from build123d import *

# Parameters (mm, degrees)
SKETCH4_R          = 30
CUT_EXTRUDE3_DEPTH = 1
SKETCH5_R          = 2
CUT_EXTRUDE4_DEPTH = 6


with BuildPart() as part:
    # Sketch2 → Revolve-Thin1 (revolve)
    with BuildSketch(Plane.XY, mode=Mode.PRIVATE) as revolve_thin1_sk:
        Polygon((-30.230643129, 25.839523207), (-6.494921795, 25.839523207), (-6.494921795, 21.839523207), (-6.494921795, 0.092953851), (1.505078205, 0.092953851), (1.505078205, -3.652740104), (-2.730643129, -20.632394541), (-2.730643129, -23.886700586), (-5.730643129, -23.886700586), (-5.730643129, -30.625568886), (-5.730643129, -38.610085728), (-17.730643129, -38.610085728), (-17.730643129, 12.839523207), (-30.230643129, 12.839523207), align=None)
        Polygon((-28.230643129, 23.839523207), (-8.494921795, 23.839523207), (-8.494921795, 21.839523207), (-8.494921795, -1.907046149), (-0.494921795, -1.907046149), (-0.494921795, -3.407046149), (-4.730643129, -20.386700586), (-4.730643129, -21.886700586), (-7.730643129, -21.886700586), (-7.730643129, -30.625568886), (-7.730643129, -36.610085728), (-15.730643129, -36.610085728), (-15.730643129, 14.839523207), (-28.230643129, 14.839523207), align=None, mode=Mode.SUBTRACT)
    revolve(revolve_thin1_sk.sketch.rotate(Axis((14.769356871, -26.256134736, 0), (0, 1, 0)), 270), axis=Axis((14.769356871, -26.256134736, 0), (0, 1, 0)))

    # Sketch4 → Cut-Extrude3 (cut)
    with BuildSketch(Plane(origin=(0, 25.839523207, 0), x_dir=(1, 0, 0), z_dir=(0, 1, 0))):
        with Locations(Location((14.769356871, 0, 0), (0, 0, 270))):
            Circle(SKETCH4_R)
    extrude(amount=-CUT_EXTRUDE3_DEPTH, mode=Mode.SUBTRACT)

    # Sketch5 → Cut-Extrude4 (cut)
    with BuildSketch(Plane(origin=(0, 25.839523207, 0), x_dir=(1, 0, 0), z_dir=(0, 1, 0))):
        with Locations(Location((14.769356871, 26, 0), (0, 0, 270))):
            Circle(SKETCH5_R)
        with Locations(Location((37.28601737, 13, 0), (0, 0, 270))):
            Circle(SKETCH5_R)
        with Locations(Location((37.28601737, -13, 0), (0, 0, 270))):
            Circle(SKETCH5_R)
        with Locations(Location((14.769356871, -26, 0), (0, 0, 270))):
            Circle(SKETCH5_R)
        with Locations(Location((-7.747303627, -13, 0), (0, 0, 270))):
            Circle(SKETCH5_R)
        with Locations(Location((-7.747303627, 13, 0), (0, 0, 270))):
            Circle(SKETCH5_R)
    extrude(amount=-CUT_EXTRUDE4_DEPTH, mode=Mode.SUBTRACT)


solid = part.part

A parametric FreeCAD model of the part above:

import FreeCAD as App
import Part
import Sketcher
from FreeCAD import Vector
Q = App.Units.Quantity


def add_polygon(sketch, points):
    """Adds a closed chain of lines whose ends are joined by coincident constraints."""
    first, n = sketch.GeometryCount, len(points)
    for a, b in zip(points, points[1:] + points[:1]):
        sketch.addGeometry(Part.LineSegment(App.Vector(*a, 0), App.Vector(*b, 0)), False)
    for i in range(n):
        sketch.addConstraint(Sketcher.Constraint("Coincident", first + i, 2, first + (i + 1) % n, 1))

doc = App.newDocument("Part")
params = doc.addObject("Spreadsheet::Sheet", "Params")
for row, (alias, value) in enumerate([
    ("sketch1_width", "12 mm"),
    ("sketch1_width2", "3 mm"),
    ("sketch1_width3", "8 mm"),
    ("sketch1_height", "13 mm"),
    ("sketch1_height2", "9 mm"),
    ("revolution_angle", "360 deg"),
    ("sketch2_diameter", "60 mm"),
    ("pocket1_length", "1 mm"),
    ("sketch3_diameter", "4 mm"),
    ("pocket2_length", "6 mm"),
], start=1):
    params.set(f"A{row}", alias)
    params.set(f"B{row}", "=" + value)
    params.setAlias(f"B{row}", alias)

body = doc.addObject("PartDesign::Body", "Body")

# Sketch on XY plane
sketch1 = body.newObject("Sketcher::SketchObject", "Sketch")
sketch1.AttachmentSupport = (doc.getObject("XY_Plane"), [""])
sketch1.MapMode = "FlatFace"
add_polygon(sketch1, [(-6.494922, 25.839523), (-30.230643, 25.839523), (-30.230643, 12.839523), (-17.730643, 12.839523), (-17.730643, -38.610086), (-5.730643, -38.610086), (-5.730643, -23.886701), (-2.730643, -23.886701), (-2.730643, -20.632395), (1.505078, -3.65274), (1.505078, 0.092954), (-6.494922, 0.092954)])  # lines 0-11
add_polygon(sketch1, [(-28.230643, 23.839523), (-8.494922, 23.839523), (-8.494922, -1.907046), (-0.494922, -1.907046), (-0.494922, -3.407046), (-4.730643, -20.386701), (-4.730643, -21.886701), (-7.730643, -21.886701), (-7.730643, -36.610086), (-15.730643, -36.610086), (-15.730643, 14.839523), (-28.230643, 14.839523)])  # lines 12-23
sketch1.addGeometry(Part.LineSegment(Vector(14.769357, -38.610086, 0), Vector(14.769357, 25.839523, 0)), True)  # axis
sketch1.addConstraint(Sketcher.Constraint("Horizontal", 0))
sketch1.addConstraint(Sketcher.Constraint("Vertical", 1))
sketch1.addConstraint(Sketcher.Constraint("Horizontal", 2))
sketch1.addConstraint(Sketcher.Constraint("Vertical", 3))
sketch1.addConstraint(Sketcher.Constraint("Horizontal", 4))
sketch1.addConstraint(Sketcher.Constraint("Vertical", 5))
sketch1.addConstraint(Sketcher.Constraint("Horizontal", 6))
sketch1.addConstraint(Sketcher.Constraint("Vertical", 7))
sketch1.addConstraint(Sketcher.Constraint("Vertical", 9))
sketch1.addConstraint(Sketcher.Constraint("Horizontal", 10))
sketch1.addConstraint(Sketcher.Constraint("Vertical", 11))
sketch1.addConstraint(Sketcher.Constraint("Horizontal", 12))
sketch1.addConstraint(Sketcher.Constraint("Vertical", 13))
sketch1.addConstraint(Sketcher.Constraint("Horizontal", 14))
sketch1.addConstraint(Sketcher.Constraint("Vertical", 15))
sketch1.addConstraint(Sketcher.Constraint("Vertical", 17))
sketch1.addConstraint(Sketcher.Constraint("Horizontal", 18))
sketch1.addConstraint(Sketcher.Constraint("Vertical", 19))
sketch1.addConstraint(Sketcher.Constraint("Horizontal", 20))
sketch1.addConstraint(Sketcher.Constraint("Vertical", 21))
sketch1.addConstraint(Sketcher.Constraint("Horizontal", 22))
sketch1.addConstraint(Sketcher.Constraint("Vertical", 23))
sketch1.addConstraint(Sketcher.Constraint("Vertical", 24))
sketch1.addConstraint(Sketcher.Constraint("Parallel", 8, 16))
sketch1.addConstraint(Sketcher.Constraint("Horizontal", 4, 2, 24, 1))
sketch1.addConstraint(Sketcher.Constraint("Horizontal", 11, 2, 24, 2))
sketch1.addConstraint(Sketcher.Constraint("Equal", 10, 14))
sketch1.addConstraint(Sketcher.Constraint("Equal", 6, 18))
sketch1.addConstraint(Sketcher.Constraint("Equal", 14, 20))
sketch1.addConstraint(Sketcher.Constraint("Equal", 2, 22))
sketch1.addConstraint(Sketcher.Constraint("Equal", 11, 13))
sketch1.addConstraint(Sketcher.Constraint("Equal", 15, 17))
sketch1.addConstraint(Sketcher.Constraint("Equal", 5, 19))
sketch1.addConstraint(Sketcher.Constraint("Equal", 3, 21))
sketch1.addConstraint(Sketcher.Constraint("Equal", 8, 16))
sketch1.addConstraint(Sketcher.Constraint("DistanceX", 4, 1, 4, 2, Q("12 mm")))
sketch1.addConstraint(Sketcher.Constraint("DistanceX", 6, 1, 6, 2, Q("3 mm")))
sketch1.addConstraint(Sketcher.Constraint("DistanceX", 10, 2, 10, 1, Q("8 mm")))
sketch1.addConstraint(Sketcher.Constraint("DistanceY", 1, 2, 1, 1, Q("13 mm")))
sketch1.addConstraint(Sketcher.Constraint("DistanceY", 23, 1, 23, 2, Q("9 mm")))
sketch1.addConstraint(Sketcher.Constraint("DistanceX", 2, 1, 2, 2, Q("12.5 mm")))
sketch1.addConstraint(Sketcher.Constraint("DistanceY", 15, 2, 15, 1, Q("1.5 mm")))
sketch1.addConstraint(Sketcher.Constraint("DistanceX", 12, 2, 11, 2, Q("2 mm")))
sketch1.addConstraint(Sketcher.Constraint("DistanceY", 12, 2, 11, 2, Q("2 mm")))
sketch1.addConstraint(Sketcher.Constraint("Distance", 8, Q("17.5 mm")))
sketch1.addConstraint(Sketcher.Constraint("DistanceX", 4, 2, 24, 1, Q("20.5 mm")))
sketch1.addConstraint(Sketcher.Constraint("DistanceX", 0, 2, 0, 1, Q("23.735721 mm")))
sketch1.addConstraint(Sketcher.Constraint("DistanceY", 3, 2, 3, 1, Q("51.449609 mm")))
sketch1.addConstraint(Sketcher.Constraint("DistanceY", 11, 1, 11, 2, Q("25.746569 mm")))
sketch1.addConstraint(Sketcher.Constraint("DistanceY", 5, 2, -1, 1, Q("23.886701 mm")))
sketch1.addConstraint(Sketcher.Constraint("DistanceY", 7, 1, 7, 2, Q("3.254306 mm")))
sketch1.addConstraint(Sketcher.Constraint("DistanceX", -1, 1, 8, 2, Q("1.505078 mm")))
sketch1.setExpression("Constraints[59]", "Params.sketch1_width")
sketch1.setExpression("Constraints[60]", "Params.sketch1_width2")
sketch1.setExpression("Constraints[61]", "Params.sketch1_width3")
sketch1.setExpression("Constraints[62]", "Params.sketch1_height")
sketch1.setExpression("Constraints[63]", "Params.sketch1_height2")
revolution = body.newObject("PartDesign::Revolution", "Revolution")
revolution.Profile = sketch1
revolution.ReferenceAxis = (sketch1, ["Axis0"])
revolution.setExpression("Angle", "Params.revolution_angle")

# Sketch on XZ plane
sketch2 = body.newObject("Sketcher::SketchObject", "Sketch001")
sketch2.AttachmentSupport = (doc.getObject("XZ_Plane"), [""])
sketch2.MapMode = "FlatFace"
sketch2.AttachmentOffset = App.Placement(Vector(0, 0, -25.839523), App.Rotation())
sketch2.addGeometry(Part.Circle(Vector(14.769357, 0, 0), Vector(0, 0, 1), 30), False)
sketch2.addConstraint(Sketcher.Constraint("PointOnObject", 0, 3, -1))
sketch2.addConstraint(Sketcher.Constraint("Diameter", 0, Q("60 mm")))
sketch2.addConstraint(Sketcher.Constraint("DistanceX", -1, 1, 0, 3, Q("14.769357 mm")))
sketch2.setExpression("Constraints[1]", "Params.sketch2_diameter")
pocket1 = body.newObject("PartDesign::Pocket", "Pocket")
pocket1.Profile = sketch2
pocket1.setExpression("Length", "Params.pocket1_length")
pocket1.Reversed = True

# Sketch on XZ plane
sketch3 = body.newObject("Sketcher::SketchObject", "Sketch002")
sketch3.AttachmentSupport = (doc.getObject("XZ_Plane"), [""])
sketch3.MapMode = "FlatFace"
sketch3.AttachmentOffset = App.Placement(Vector(0, 0, -25.839523), App.Rotation())
sketch3.addGeometry(Part.Circle(Vector(14.769357, -26, 0), Vector(0, 0, 1), 2), False)
sketch3.addGeometry(Part.Circle(Vector(37.286017, -13, 0), Vector(0, 0, 1), 2), False)
sketch3.addGeometry(Part.Circle(Vector(37.286017, 13, 0), Vector(0, 0, 1), 2), False)
sketch3.addGeometry(Part.Circle(Vector(14.769357, 26, 0), Vector(0, 0, 1), 2), False)
sketch3.addGeometry(Part.Circle(Vector(-7.747304, 13, 0), Vector(0, 0, 1), 2), False)
sketch3.addGeometry(Part.Circle(Vector(-7.747304, -13, 0), Vector(0, 0, 1), 2), False)
sketch3.addConstraint(Sketcher.Constraint("Equal", 0, 1))
sketch3.addConstraint(Sketcher.Constraint("Equal", 1, 2))
sketch3.addConstraint(Sketcher.Constraint("Equal", 2, 3))
sketch3.addConstraint(Sketcher.Constraint("Equal", 3, 4))
sketch3.addConstraint(Sketcher.Constraint("Equal", 4, 5))
sketch3.addConstraint(Sketcher.Constraint("Symmetric", 1, 3, 2, 3, -1))
sketch3.addConstraint(Sketcher.Constraint("Symmetric", 0, 3, 3, 3, -1))
sketch3.addConstraint(Sketcher.Constraint("Symmetric", 4, 3, 5, 3, -1))
sketch3.addConstraint(Sketcher.Constraint("Horizontal", 2, 3, 4, 3))
sketch3.addConstraint(Sketcher.Constraint("Diameter", 0, Q("4 mm")))
sketch3.addConstraint(Sketcher.Constraint("DistanceY", 0, 3, -1, 1, Q("26 mm")))
sketch3.addConstraint(Sketcher.Constraint("DistanceY", 1, 3, -1, 1, Q("13 mm")))
sketch3.addConstraint(Sketcher.Constraint("DistanceX", 0, 3, 1, 3, Q("22.51666 mm")))
sketch3.addConstraint(Sketcher.Constraint("DistanceX", 4, 3, 3, 3, Q("22.51666 mm")))
sketch3.addConstraint(Sketcher.Constraint("DistanceX", -1, 1, 0, 3, Q("14.769357 mm")))
sketch3.setExpression("Constraints[9]", "Params.sketch3_diameter")
pocket2 = body.newObject("PartDesign::Pocket", "Pocket001")
pocket2.Profile = sketch3
pocket2.setExpression("Length", "Params.pocket2_length")
pocket2.Reversed = True

doc.recompute()
